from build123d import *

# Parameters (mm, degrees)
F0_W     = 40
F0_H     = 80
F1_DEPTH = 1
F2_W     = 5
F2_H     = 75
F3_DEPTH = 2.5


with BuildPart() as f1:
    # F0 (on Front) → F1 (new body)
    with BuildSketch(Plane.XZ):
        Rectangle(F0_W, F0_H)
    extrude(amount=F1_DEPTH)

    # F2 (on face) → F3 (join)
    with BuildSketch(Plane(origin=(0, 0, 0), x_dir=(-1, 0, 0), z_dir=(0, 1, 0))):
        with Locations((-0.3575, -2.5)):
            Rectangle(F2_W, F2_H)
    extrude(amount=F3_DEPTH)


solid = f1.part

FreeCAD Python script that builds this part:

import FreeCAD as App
import Part
import Sketcher
from FreeCAD import Vector
Q = App.Units.Quantity

doc = App.newDocument("Part")
body = doc.addObject("PartDesign::Body", "Body")

sketch1 = body.newObject("Sketcher::SketchObject", "Sketch")
sketch1.AttachmentSupport = (doc.getObject("XZ_Plane"), [""])
sketch1.MapMode = "FlatFace"
sketch1.addGeometry([
    Part.LineSegment(Vector(-20, 40, 0), Vector(-20, -40, 0)),
    Part.LineSegment(Vector(-20, -40, 0), Vector(20, -40, 0)),
    Part.LineSegment(Vector(20, -40, 0), Vector(20, 40, 0)),
    Part.LineSegment(Vector(20, 40, 0), Vector(-20, 40, 0)),
], False)
sketch1.addConstraint([
    Sketcher.Constraint("Coincident", 0, 2, 1, 1),
    Sketcher.Constraint("Coincident", 1, 2, 2, 1),
    Sketcher.Constraint("Coincident", 2, 2, 3, 1),
    Sketcher.Constraint("Coincident", 3, 2, 0, 1),
    Sketcher.Constraint("Vertical", 0),
    Sketcher.Constraint("Horizontal", 1),
    Sketcher.Constraint("Vertical", 2),
    Sketcher.Constraint("Horizontal", 3),
    Sketcher.Constraint("Symmetric", 0, 2, 2, 2, -1, 1),
    Sketcher.Constraint("DistanceX", 1, 1, 1, 2, Q("40 mm")),
    Sketcher.Constraint("DistanceY", 0, 2, 0, 1, Q("80 mm")),
])
pad1 = body.newObject("PartDesign::Pad", "Pad")
pad1.Profile = sketch1
pad1.Length = 1

sketch2 = body.newObject("Sketcher::SketchObject", "Sketch001")
sketch2.AttachmentSupport = (doc.getObject("XZ_Plane"), [""])
sketch2.MapMode = "FlatFace"
sketch2.addGeometry([
    Part.LineSegment(Vector(2.8575, 35, 0), Vector(2.8575, -40, 0)),
    Part.LineSegment(Vector(2.8575, -40, 0), Vector(-2.1425, -40, 0)),
    Part.LineSegment(Vector(-2.1425, -40, 0), Vector(-2.1425, 35, 0)),
    Part.LineSegment(Vector(-2.1425, 35, 0), Vector(2.8575, 35, 0)),
], False)
sketch2.addConstraint([
    Sketcher.Constraint("Coincident", 0, 2, 1, 1),
    Sketcher.Constraint("Coincident", 1, 2, 2, 1),
    Sketcher.Constraint("Coincident", 2, 2, 3, 1),
    Sketcher.Constraint("Coincident", 3, 2, 0, 1),
    Sketcher.Constraint("Vertical", 0),
    Sketcher.Constraint("Horizontal", 1),
    Sketcher.Constraint("Vertical", 2),
    Sketcher.Constraint("Horizontal", 3),
    Sketcher.Constraint("DistanceX", 1, 2, 1, 1, Q("5 mm")),
    Sketcher.Constraint("DistanceY", 0, 2, 0, 1, Q("75 mm")),
    Sketcher.Constraint("DistanceY", 0, 2, -1, 1, Q("40 mm")),
    Sketcher.Constraint("DistanceX", -1, 1, 0, 2, Q("2.8575 mm")),
])
pad2 = body.newObject("PartDesign::Pad", "Pad001")
pad2.Profile = sketch2
pad2.Length = 2.5
pad2.Reversed = True

doc.recompute()
